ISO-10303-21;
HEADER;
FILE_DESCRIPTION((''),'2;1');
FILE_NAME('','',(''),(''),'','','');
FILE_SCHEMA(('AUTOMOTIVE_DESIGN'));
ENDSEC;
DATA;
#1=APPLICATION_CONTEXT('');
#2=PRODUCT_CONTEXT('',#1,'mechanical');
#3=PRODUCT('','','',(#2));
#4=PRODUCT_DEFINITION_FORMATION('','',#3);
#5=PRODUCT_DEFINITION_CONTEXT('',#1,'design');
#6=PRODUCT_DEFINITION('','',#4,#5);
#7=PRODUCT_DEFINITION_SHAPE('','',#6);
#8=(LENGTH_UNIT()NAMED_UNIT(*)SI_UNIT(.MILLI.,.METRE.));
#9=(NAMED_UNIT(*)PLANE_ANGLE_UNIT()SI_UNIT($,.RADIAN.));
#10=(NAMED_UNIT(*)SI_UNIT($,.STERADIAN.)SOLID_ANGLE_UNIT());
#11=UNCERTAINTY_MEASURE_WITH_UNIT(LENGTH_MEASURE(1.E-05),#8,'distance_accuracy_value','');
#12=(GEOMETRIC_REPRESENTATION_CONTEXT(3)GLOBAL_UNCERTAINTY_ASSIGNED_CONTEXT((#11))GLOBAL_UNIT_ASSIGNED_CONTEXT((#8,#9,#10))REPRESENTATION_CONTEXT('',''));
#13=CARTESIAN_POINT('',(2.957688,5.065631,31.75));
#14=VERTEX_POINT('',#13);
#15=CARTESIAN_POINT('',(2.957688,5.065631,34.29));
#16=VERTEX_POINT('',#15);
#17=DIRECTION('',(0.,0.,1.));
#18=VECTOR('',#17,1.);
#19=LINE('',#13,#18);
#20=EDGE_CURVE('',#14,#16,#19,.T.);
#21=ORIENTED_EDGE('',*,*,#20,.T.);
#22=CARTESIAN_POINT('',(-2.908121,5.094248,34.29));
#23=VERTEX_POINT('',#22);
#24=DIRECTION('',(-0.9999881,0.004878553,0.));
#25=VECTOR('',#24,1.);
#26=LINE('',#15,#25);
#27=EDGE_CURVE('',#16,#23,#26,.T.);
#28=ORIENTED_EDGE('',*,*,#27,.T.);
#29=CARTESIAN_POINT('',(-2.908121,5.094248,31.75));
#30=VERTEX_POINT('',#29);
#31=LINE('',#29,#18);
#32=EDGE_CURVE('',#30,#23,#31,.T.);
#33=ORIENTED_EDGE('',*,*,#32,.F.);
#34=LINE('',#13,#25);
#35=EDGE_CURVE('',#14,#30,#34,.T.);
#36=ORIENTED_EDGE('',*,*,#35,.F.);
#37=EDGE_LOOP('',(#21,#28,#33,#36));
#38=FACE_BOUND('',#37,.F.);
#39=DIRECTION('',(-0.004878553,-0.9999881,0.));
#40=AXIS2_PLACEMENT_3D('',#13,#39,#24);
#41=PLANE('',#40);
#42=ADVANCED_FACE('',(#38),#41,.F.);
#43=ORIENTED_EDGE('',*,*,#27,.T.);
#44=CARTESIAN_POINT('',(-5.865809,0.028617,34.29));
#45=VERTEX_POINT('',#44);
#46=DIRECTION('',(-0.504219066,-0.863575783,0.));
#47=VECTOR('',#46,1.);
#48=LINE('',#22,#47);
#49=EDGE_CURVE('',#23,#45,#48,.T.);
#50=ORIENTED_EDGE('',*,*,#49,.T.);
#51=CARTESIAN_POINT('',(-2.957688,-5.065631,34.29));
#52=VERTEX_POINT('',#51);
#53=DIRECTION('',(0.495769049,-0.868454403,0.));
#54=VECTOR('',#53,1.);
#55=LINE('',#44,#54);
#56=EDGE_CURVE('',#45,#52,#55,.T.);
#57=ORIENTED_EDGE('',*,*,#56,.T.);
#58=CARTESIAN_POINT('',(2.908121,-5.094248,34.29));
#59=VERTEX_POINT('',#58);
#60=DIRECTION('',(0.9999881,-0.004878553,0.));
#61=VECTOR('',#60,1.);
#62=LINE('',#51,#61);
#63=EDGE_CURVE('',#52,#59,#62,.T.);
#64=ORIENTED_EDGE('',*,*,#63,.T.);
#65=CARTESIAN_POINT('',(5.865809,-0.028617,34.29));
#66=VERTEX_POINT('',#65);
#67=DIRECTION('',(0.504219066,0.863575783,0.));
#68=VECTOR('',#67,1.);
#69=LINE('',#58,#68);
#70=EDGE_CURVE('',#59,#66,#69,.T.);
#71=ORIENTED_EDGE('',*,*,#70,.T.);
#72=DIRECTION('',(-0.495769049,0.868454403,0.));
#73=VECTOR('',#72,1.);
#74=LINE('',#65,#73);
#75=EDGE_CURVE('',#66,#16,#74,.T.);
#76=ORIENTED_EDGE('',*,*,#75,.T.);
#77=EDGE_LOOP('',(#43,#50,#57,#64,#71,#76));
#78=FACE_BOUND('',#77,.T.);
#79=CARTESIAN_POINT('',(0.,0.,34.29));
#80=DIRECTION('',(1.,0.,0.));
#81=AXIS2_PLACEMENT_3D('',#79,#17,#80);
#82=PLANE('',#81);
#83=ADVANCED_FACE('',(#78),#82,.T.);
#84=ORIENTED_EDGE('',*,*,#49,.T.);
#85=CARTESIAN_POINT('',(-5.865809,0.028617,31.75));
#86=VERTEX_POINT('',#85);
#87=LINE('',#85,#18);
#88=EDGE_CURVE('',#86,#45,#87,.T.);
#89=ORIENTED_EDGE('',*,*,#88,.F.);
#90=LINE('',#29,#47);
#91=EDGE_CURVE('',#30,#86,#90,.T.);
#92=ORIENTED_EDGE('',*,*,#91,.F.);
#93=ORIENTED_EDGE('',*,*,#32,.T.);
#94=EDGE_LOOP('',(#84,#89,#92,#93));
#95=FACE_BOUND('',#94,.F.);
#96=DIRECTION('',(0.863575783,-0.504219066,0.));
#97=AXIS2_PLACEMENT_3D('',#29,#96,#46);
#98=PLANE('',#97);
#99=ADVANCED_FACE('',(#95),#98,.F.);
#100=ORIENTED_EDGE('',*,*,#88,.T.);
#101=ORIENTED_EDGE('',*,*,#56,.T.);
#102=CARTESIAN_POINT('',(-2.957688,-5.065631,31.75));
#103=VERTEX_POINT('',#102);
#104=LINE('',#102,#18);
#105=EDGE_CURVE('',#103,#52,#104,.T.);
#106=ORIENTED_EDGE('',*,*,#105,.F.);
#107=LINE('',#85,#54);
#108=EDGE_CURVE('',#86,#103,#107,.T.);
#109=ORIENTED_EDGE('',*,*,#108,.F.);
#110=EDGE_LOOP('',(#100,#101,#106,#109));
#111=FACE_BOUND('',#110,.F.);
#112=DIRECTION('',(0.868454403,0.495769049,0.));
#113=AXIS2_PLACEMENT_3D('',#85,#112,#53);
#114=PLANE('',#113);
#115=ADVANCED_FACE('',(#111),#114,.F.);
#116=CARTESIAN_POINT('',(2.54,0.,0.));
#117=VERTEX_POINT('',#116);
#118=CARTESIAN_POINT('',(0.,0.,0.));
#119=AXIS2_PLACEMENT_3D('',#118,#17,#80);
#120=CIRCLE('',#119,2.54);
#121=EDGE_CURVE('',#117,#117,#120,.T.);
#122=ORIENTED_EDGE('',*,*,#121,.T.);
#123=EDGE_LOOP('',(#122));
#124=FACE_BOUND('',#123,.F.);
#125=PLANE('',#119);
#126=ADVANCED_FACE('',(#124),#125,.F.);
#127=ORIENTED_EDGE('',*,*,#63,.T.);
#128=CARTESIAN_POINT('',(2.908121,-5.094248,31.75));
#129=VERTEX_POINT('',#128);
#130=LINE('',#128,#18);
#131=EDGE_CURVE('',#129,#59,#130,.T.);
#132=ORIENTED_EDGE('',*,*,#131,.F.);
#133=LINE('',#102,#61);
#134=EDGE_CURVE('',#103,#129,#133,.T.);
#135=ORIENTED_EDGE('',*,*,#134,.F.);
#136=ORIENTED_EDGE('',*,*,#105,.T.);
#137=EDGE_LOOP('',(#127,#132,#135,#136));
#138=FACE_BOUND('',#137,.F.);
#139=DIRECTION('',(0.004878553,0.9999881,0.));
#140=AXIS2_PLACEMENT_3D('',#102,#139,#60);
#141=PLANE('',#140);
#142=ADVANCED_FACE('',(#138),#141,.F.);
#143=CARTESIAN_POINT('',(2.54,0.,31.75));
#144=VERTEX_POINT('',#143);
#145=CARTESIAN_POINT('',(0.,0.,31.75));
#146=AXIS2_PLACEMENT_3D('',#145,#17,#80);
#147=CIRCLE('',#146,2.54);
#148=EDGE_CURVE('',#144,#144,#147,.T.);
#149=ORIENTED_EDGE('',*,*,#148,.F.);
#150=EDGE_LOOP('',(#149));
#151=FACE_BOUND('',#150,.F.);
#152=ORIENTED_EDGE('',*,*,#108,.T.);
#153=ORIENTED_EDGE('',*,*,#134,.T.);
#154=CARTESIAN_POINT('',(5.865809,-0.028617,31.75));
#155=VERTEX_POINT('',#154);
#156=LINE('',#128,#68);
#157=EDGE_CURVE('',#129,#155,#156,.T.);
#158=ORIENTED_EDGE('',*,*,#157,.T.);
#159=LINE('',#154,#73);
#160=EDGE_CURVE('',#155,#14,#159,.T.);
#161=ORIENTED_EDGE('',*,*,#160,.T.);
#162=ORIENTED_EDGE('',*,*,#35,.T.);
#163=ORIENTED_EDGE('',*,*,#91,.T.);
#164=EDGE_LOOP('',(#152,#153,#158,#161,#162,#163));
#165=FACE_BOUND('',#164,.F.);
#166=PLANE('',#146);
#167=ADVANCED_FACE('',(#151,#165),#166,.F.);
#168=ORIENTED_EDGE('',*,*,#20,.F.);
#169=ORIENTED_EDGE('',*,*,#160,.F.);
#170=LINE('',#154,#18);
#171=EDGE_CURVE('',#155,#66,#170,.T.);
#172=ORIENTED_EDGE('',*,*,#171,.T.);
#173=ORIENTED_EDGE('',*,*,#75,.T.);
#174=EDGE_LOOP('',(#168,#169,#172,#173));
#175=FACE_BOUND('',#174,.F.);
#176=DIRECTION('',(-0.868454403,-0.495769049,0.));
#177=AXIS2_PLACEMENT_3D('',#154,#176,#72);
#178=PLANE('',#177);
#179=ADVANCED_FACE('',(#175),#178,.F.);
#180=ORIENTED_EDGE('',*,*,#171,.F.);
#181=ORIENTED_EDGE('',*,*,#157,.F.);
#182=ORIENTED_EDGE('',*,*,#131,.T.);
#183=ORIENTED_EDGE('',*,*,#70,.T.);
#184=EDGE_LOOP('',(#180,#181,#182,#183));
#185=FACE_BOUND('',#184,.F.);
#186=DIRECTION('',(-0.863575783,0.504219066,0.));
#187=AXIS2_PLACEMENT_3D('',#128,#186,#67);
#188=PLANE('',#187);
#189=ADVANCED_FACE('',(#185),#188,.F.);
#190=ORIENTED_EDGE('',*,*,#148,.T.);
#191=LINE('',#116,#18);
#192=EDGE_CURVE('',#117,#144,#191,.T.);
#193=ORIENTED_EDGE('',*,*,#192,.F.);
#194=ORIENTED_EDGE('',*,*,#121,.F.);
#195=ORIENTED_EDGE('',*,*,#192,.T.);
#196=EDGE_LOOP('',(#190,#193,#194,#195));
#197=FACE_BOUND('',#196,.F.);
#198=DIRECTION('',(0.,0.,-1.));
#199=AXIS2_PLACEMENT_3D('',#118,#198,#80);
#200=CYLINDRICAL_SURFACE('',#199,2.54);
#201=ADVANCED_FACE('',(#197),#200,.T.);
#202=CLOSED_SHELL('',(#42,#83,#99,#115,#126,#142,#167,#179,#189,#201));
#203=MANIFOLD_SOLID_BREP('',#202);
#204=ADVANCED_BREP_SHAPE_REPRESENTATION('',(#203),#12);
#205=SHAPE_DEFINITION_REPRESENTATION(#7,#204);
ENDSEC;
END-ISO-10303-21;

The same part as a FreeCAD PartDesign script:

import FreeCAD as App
import Part
import Sketcher

V = App.Vector
Q = App.Units.Quantity

doc = App.newDocument("Part")
body = doc.addObject("PartDesign::Body", "Body")

sketch1 = body.newObject("Sketcher::SketchObject", "Sketch")
sketch1.AttachmentSupport = (doc.getObject("XY_Plane"), [""])
sketch1.MapMode = "FlatFace"
sketch1.addGeometry(Part.Circle(V(0, 0, 0), V(0, 0, 1), 2.5), False)
sketch1.addConstraint([
    Sketcher.Constraint("Coincident", 0, 3, -1, 1),
    Sketcher.Constraint("Diameter", 0, Q("0.2 in")),
])
pad1 = body.newObject("PartDesign::Pad", "Pad")
pad1.Profile = sketch1
pad1.Length = Q("1.25 in")

sketch2 = body.newObject("Sketcher::SketchObject", "Sketch001")
sketch2.AttachmentSupport = (doc.getObject("XY_Plane"), [""])
sketch2.MapMode = "FlatFace"
sketch2.AttachmentOffset = App.Placement(V(0, 0, 1.25 * 25.4), App.Rotation())
sketch2.addGeometry([
    Part.LineSegment(V(6, 0, 0), V(3, 5, 0)),
    Part.LineSegment(V(3, 5, 0), V(-3, 5, 0)),
    Part.LineSegment(V(-3, 5, 0), V(-6, 0, 0)),
    Part.LineSegment(V(-6, 0, 0), V(-3, -5, 0)),
    Part.LineSegment(V(-3, -5, 0), V(3, -5, 0)),
    Part.LineSegment(V(3, -5, 0), V(6, 0, 0)),
], False)
sketch2.addConstraint([
    Sketcher.Constraint("Coincident", 0, 2, 1, 1),
    Sketcher.Constraint("Coincident", 1, 2, 2, 1),
    Sketcher.Constraint("Coincident", 2, 2, 3, 1),
    Sketcher.Constraint("Coincident", 3, 2, 4, 1),
    Sketcher.Constraint("Coincident", 4, 2, 5, 1),
    Sketcher.Constraint("Coincident", 5, 2, 0, 1),
    Sketcher.Constraint("Symmetric", 0, 2, 3, 2, -1, 1),
    Sketcher.Constraint("Symmetric", 1, 2, 4, 2, -1, 1),
    Sketcher.Constraint("Symmetric", 2, 2, 5, 2, -1, 1),
    Sketcher.Constraint("Equal", 0, 1),
    Sketcher.Constraint("Equal", 1, 2),
    Sketcher.Constraint("Distance", 0, Q("5.865878 mm")),
    Sketcher.Constraint("DistanceX", -1, 1, 0, 2, Q("2.957688 mm")),
    Sketcher.Constraint("DistanceY", -1, 1, 0, 2, Q("5.065631 mm")),
    Sketcher.Constraint("DistanceY", -1, 1, 1, 2, Q("5.094248 mm")),
])
pad2 = body.newObject("PartDesign::Pad", "Pad001")
pad2.Profile = sketch2
pad2.Length = Q("0.1 in")

doc.recompute()
